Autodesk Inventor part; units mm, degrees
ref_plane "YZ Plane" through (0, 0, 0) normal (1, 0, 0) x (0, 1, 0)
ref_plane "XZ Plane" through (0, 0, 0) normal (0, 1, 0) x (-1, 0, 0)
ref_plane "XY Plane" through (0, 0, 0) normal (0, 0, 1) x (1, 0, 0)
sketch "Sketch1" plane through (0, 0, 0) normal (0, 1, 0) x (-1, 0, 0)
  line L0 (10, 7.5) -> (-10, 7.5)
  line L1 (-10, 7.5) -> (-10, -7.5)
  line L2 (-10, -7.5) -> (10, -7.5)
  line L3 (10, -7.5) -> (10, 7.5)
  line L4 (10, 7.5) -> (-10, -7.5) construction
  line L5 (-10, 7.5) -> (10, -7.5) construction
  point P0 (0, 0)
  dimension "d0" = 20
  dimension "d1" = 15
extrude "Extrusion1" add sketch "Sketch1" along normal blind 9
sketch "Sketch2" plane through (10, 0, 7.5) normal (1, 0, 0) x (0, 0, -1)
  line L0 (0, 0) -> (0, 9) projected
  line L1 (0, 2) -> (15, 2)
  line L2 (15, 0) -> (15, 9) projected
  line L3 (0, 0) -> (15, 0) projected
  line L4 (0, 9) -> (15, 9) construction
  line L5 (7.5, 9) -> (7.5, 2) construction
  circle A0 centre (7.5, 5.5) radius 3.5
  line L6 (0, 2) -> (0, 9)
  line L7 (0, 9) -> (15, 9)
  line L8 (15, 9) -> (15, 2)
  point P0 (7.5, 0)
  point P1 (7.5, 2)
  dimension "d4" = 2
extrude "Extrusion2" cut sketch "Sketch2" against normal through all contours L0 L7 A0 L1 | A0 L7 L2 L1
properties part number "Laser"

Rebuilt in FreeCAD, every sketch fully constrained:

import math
import FreeCAD as App
import Part
import Sketcher

V = App.Vector
Q = App.Units.Quantity

doc = App.newDocument("Part")
body = doc.addObject("PartDesign::Body", "Body")
body.AllowCompound = True

sketch1 = body.newObject("Sketcher::SketchObject", "Sketch")
sketch1.AttachmentSupport = (doc.getObject("XZ_Plane"), [""])
sketch1.MapMode = "FlatFace"
sketch1.addGeometry([
    Part.LineSegment(V(-10, -8, 0), V(-10, 8, 0)),
    Part.LineSegment(V(-10, 8, 0), V(10, 8, 0)),
    Part.LineSegment(V(10, 8, 0), V(10, -8, 0)),
    Part.LineSegment(V(10, -8, 0), V(-10, -8, 0)),
], False)
sketch1.addConstraint([
    Sketcher.Constraint("Coincident", 0, 2, 1, 1),
    Sketcher.Constraint("Coincident", 1, 2, 2, 1),
    Sketcher.Constraint("Coincident", 2, 2, 3, 1),
    Sketcher.Constraint("Coincident", 3, 2, 0, 1),
    Sketcher.Constraint("Vertical", 0),
    Sketcher.Constraint("Horizontal", 1),
    Sketcher.Constraint("Vertical", 2),
    Sketcher.Constraint("Horizontal", 3),
    Sketcher.Constraint("Symmetric", 0, 2, 2, 2, -1, 1),
    Sketcher.Constraint("DistanceX", 1, 1, 1, 2, Q("20 mm")),
    Sketcher.Constraint("DistanceY", 0, 1, 0, 2, Q("15 mm")),
])
pad1 = body.newObject("PartDesign::Pad", "Pad")
pad1.Profile = sketch1
pad1.Length = 9
pad1.Reversed = True

sketch2 = body.newObject("Sketcher::SketchObject", "Sketch001")
sketch2.AttachmentSupport = (doc.getObject("YZ_Plane"), [""])
sketch2.MapMode = "FlatFace"
sketch2.AttachmentOffset = App.Placement(V(0, 0, 10), App.Rotation())
sketch2.addGeometry([
    Part.LineSegment(V(9, 7.5, 0), V(2, 7.5, 0)),
    Part.LineSegment(V(2, 7.5, 0), V(2, 0, 0)),
    Part.ArcOfCircle(Part.Circle(V(5.5, 0, 0), V(0, 0, 1), 3.5), math.radians(0), math.radians(180)),
    Part.LineSegment(V(9, 0, 0), V(9, 7.5, 0)),
    Part.ArcOfCircle(Part.Circle(V(5.5, 0, 0), V(0, 0, 1), 3.5), math.radians(180), math.radians(360)),
    Part.LineSegment(V(2, 0, 0), V(2, -7.5, 0)),
    Part.LineSegment(V(2, -7.5, 0), V(9, -7.5, 0)),
    Part.LineSegment(V(9, -7.5, 0), V(9, 0, 0)),
], False)
sketch2.addConstraint([
    Sketcher.Constraint("Coincident", 0, 2, 1, 1),
    Sketcher.Constraint("Tangent", 1, 2, 2, 2),
    Sketcher.Constraint("Tangent", 2, 1, 3, 1),
    Sketcher.Constraint("Coincident", 3, 2, 0, 1),
    Sketcher.Constraint("Tangent", 4, 1, 5, 1),
    Sketcher.Constraint("Coincident", 5, 2, 6, 1),
    Sketcher.Constraint("Coincident", 6, 2, 7, 1),
    Sketcher.Constraint("Tangent", 7, 2, 4, 2),
    Sketcher.Constraint("Horizontal", 0),
    Sketcher.Constraint("Vertical", 1),
    Sketcher.Constraint("Vertical", 3),
    Sketcher.Constraint("Vertical", 5),
    Sketcher.Constraint("Horizontal", 6),
    Sketcher.Constraint("Vertical", 7),
    Sketcher.Constraint("Coincident", 4, 3, 2, 3),
    Sketcher.Constraint("Equal", 2, 4),
    Sketcher.Constraint("PointOnObject", 2, 3, -1),
    Sketcher.Constraint("Equal", 3, 5),
    Sketcher.Constraint("DistanceX", -1, 1, 0, 2, Q("2 mm")),
    Sketcher.Constraint("Radius", 2, Q("3.5 mm")),
    Sketcher.Constraint("DistanceY", 1, 2, 1, 1, Q("7.5 mm")),
])
pocket1 = body.newObject("PartDesign::Pocket", "Pocket")
pocket1.Profile = sketch2
pocket1.Type = "ThroughAll"

doc.recompute()
